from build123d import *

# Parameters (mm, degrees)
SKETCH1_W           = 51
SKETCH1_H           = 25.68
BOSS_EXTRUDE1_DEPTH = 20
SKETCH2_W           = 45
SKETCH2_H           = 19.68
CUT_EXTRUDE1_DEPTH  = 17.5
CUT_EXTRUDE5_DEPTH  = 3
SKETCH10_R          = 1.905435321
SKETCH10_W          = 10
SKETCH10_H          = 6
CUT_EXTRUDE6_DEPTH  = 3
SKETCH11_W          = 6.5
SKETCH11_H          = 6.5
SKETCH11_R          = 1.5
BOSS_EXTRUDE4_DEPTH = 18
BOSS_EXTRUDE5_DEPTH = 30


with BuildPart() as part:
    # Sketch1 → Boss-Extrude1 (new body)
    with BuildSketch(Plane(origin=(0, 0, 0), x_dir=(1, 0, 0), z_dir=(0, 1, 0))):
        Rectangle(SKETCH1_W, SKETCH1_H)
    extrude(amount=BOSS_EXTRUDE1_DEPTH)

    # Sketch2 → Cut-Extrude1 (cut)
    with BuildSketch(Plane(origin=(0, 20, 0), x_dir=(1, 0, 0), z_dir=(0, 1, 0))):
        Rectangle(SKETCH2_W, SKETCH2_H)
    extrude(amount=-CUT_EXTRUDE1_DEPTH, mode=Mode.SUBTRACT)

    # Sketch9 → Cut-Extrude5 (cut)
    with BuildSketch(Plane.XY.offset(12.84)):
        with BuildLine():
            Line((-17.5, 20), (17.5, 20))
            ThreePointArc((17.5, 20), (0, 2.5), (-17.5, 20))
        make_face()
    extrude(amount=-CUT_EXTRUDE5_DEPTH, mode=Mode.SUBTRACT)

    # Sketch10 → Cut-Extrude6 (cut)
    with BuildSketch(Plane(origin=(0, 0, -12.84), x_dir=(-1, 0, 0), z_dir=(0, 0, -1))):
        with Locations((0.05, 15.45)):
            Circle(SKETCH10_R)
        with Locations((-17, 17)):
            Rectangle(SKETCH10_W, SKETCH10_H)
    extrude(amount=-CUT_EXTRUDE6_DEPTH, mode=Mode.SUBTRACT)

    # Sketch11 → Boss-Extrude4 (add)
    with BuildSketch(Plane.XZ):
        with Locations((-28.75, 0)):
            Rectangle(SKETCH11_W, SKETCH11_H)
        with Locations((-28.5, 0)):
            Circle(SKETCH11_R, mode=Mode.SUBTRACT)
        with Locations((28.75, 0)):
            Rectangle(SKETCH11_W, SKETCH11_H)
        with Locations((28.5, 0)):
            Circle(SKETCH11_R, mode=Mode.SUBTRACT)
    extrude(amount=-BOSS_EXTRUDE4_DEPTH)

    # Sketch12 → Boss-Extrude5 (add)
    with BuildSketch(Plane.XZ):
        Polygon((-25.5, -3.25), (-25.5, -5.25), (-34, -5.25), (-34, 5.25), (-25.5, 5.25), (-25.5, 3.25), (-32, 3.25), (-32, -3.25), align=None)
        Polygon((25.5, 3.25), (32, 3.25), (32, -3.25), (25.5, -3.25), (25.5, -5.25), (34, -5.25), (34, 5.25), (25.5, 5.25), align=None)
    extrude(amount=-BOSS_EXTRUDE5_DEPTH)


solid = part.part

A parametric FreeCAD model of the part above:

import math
import FreeCAD as App
import Part
import Sketcher
from FreeCAD import Vector
Q = App.Units.Quantity


def add_polygon(sketch, points):
    """Adds a closed chain of lines whose ends are joined by coincident constraints."""
    first, n = sketch.GeometryCount, len(points)
    for a, b in zip(points, points[1:] + points[:1]):
        sketch.addGeometry(Part.LineSegment(App.Vector(*a, 0), App.Vector(*b, 0)), False)
    for i in range(n):
        sketch.addConstraint(Sketcher.Constraint("Coincident", first + i, 2, first + (i + 1) % n, 1))

doc = App.newDocument("Part")
body = doc.addObject("PartDesign::Body", "Body")

# Sketch on XZ plane
sketch1 = doc.addObject("Sketcher::SketchObject", "Sketch")
body.addObject(sketch1)
sketch1.AttachmentSupport = (doc.XZ_Plane, [""])
sketch1.MapMode = "FlatFace"
add_polygon(sketch1, [(-26, -13), (-26, 13), (26, 13), (26, -13)])  # lines 0-3
sketch1.addConstraint([
    Sketcher.Constraint("Vertical", 0),
    Sketcher.Constraint("Horizontal", 1),
    Sketcher.Constraint("Vertical", 2),
    Sketcher.Constraint("Horizontal", 3),
    Sketcher.Constraint("Symmetric", 0, 2, 2, 2, -1, 1),
    Sketcher.Constraint("DistanceX", 1, 1, 1, 2, Q("51 mm")),
    Sketcher.Constraint("DistanceY", 0, 1, 0, 2, Q("25.68 mm")),
])
pad1 = doc.addObject("PartDesign::Pad", "Pad")
body.addObject(pad1)
pad1.Profile = sketch1
pad1.Length = 20
pad1.Reversed = True

# Sketch on XZ plane
sketch2 = doc.addObject("Sketcher::SketchObject", "Sketch001")
body.addObject(sketch2)
sketch2.AttachmentSupport = (doc.XZ_Plane, [""])
sketch2.MapMode = "FlatFace"
sketch2.AttachmentOffset = App.Placement(Vector(0, 0, -20), App.Rotation())
add_polygon(sketch2, [(-22, -10), (-22, 10), (22, 10), (22, -10)])  # lines 0-3
sketch2.addConstraint([
    Sketcher.Constraint("Vertical", 0),
    Sketcher.Constraint("Horizontal", 1),
    Sketcher.Constraint("Vertical", 2),
    Sketcher.Constraint("Horizontal", 3),
    Sketcher.Constraint("Symmetric", 0, 2, 2, 2, -1, 1),
    Sketcher.Constraint("DistanceX", 1, 1, 1, 2, Q("45 mm")),
    Sketcher.Constraint("DistanceY", 0, 1, 0, 2, Q("19.68 mm")),
])
pocket1 = doc.addObject("PartDesign::Pocket", "Pocket")
body.addObject(pocket1)
pocket1.Profile = sketch2
pocket1.Length = 17.5
pocket1.Reversed = True

# Sketch on XY plane
sketch3 = doc.addObject("Sketcher::SketchObject", "Sketch002")
body.addObject(sketch3)
sketch3.AttachmentSupport = (doc.XY_Plane, [""])
sketch3.MapMode = "FlatFace"
sketch3.AttachmentOffset = App.Placement(Vector(0, 0, 12.84), App.Rotation())
sketch3.addGeometry([
    Part.LineSegment(Vector(18, 20, 0), Vector(-18, 20, 0)),
    Part.ArcOfCircle(Part.Circle(Vector(0, 20, 0), Vector(0, 0, 1), 18), math.radians(180), math.radians(360)),
], False)
sketch3.addConstraint([
    Sketcher.Constraint("Coincident", 0, 1, 1, 2),
    Sketcher.Constraint("Coincident", 1, 1, 0, 2),
    Sketcher.Constraint("Horizontal", 0),
    Sketcher.Constraint("PointOnObject", 1, 3, -2),
    Sketcher.Constraint("Horizontal", 1, 3, 0, 1),
    Sketcher.Constraint("Radius", 1, Q("17.5 mm")),
    Sketcher.Constraint("DistanceY", -1, 1, 1, 3, Q("20 mm")),
])
pocket2 = doc.addObject("PartDesign::Pocket", "Pocket001")
body.addObject(pocket2)
pocket2.Profile = sketch3
pocket2.Length = 3

# Sketch on XY plane
sketch4 = doc.addObject("Sketcher::SketchObject", "Sketch003")
body.addObject(sketch4)
sketch4.AttachmentSupport = (doc.XY_Plane, [""])
sketch4.MapMode = "FlatFace"
sketch4.AttachmentOffset = App.Placement(Vector(0, 0, -12.84), App.Rotation())
sketch4.addGeometry(Part.Circle(Vector(-0.1, 15.4, 0), Vector(0, 0, 1), 1.9), False)  # 0
add_polygon(sketch4, [(22, 20), (22, 14), (12, 14), (12, 20)])  # lines 1-4
sketch4.addConstraint([
    Sketcher.Constraint("Vertical", 1),
    Sketcher.Constraint("Horizontal", 2),
    Sketcher.Constraint("Vertical", 3),
    Sketcher.Constraint("Horizontal", 4),
    Sketcher.Constraint("DistanceX", 2, 2, 2, 1, Q("10 mm")),
    Sketcher.Constraint("DistanceY", 1, 2, 1, 1, Q("6 mm")),
    Sketcher.Constraint("DistanceX", -1, 1, 1, 2, Q("22 mm")),
    Sketcher.Constraint("DistanceY", -1, 1, 1, 2, Q("14 mm")),
    Sketcher.Constraint("Diameter", 0, Q("3.810871 mm")),
    Sketcher.Constraint("DistanceX", 0, 3, -1, 1, Q("0.05 mm")),
    Sketcher.Constraint("DistanceY", -1, 1, 0, 3, Q("15.45 mm")),
])
pocket3 = doc.addObject("PartDesign::Pocket", "Pocket002")
body.addObject(pocket3)
pocket3.Profile = sketch4
pocket3.Length = 3
pocket3.Reversed = True

# Sketch on XZ plane
sketch5 = doc.addObject("Sketcher::SketchObject", "Sketch004")
body.addObject(sketch5)
sketch5.AttachmentSupport = (doc.XZ_Plane, [""])
sketch5.MapMode = "FlatFace"
add_polygon(sketch5, [(-32, 3.2), (-32, -3.2), (-25.5, -3.2), (-25.5, 3.2)])  # lines 0-3
sketch5.addGeometry(Part.Circle(Vector(-28.5, 0, 0), Vector(0, 0, 1), 1.5), False)  # 4
add_polygon(sketch5, [(25.5, 3.2), (25.5, -3.2), (32, -3.2), (32, 3.2)])  # lines 5-8
sketch5.addGeometry(Part.Circle(Vector(28.5, 0, 0), Vector(0, 0, 1), 1.5), False)  # 9
sketch5.addConstraint([
    Sketcher.Constraint("Vertical", 0),
    Sketcher.Constraint("Horizontal", 1),
    Sketcher.Constraint("Vertical", 2),
    Sketcher.Constraint("Horizontal", 3),
    Sketcher.Constraint("Vertical", 5),
    Sketcher.Constraint("Horizontal", 6),
    Sketcher.Constraint("Vertical", 7),
    Sketcher.Constraint("Horizontal", 8),
    Sketcher.Constraint("Equal", 4, 9),
    Sketcher.Constraint("Symmetric", 4, 3, 9, 3, -1, 1),
    Sketcher.Constraint("Symmetric", 2, 2, 5, 2, -1, 1),
    Sketcher.Constraint("Symmetric", 0, 2, 7, 2, -1, 1),
    Sketcher.Constraint("PointOnObject", 4, 3, -1),
    Sketcher.Constraint("Horizontal", 1, 2, 5, 2),
    Sketcher.Constraint("Equal", 8, 0),
    Sketcher.Constraint("Diameter", 4, Q("3 mm")),
    Sketcher.Constraint("DistanceX", 1, 1, 1, 2, Q("6.5 mm")),
    Sketcher.Constraint("DistanceX", 0, 2, -1, 1, Q("32 mm")),
    Sketcher.Constraint("DistanceX", 4, 3, 9, 3, Q("57 mm")),
])
pad2 = doc.addObject("PartDesign::Pad", "Pad001")
body.addObject(pad2)
pad2.Profile = sketch5
pad2.Length = 18
pad2.Reversed = True

# Sketch on XZ plane
sketch6 = doc.addObject("Sketcher::SketchObject", "Sketch005")
body.addObject(sketch6)
sketch6.AttachmentSupport = (doc.XZ_Plane, [""])
sketch6.MapMode = "FlatFace"
add_polygon(sketch6, [(-25.5, -5.2), (-25.5, -3.2), (-32, -3.2), (-32, 3.2), (-25.5, 3.2), (-25.5, 5.2), (-34, 5.2), (-34, -5.2)])  # lines 0-7
add_polygon(sketch6, [(25.5, 3.2), (32, 3.2), (32, -3.2), (25.5, -3.2), (25.5, -5.2), (34, -5.2), (34, 5.2), (25.5, 5.2)])  # lines 8-15
sketch6.addConstraint([
    Sketcher.Constraint("Vertical", 0),
    Sketcher.Constraint("Horizontal", 1),
    Sketcher.Constraint("Vertical", 2),
    Sketcher.Constraint("Horizontal", 3),
    Sketcher.Constraint("Vertical", 4),
    Sketcher.Constraint("Horizontal", 5),
    Sketcher.Constraint("Vertical", 6),
    Sketcher.Constraint("Horizontal", 7),
    Sketcher.Constraint("Horizontal", 8),
    Sketcher.Constraint("Vertical", 9),
    Sketcher.Constraint("Horizontal", 10),
    Sketcher.Constraint("Vertical", 11),
    Sketcher.Constraint("Horizontal", 12),
    Sketcher.Constraint("Vertical", 13),
    Sketcher.Constraint("Horizontal", 14),
    Sketcher.Constraint("Vertical", 15),
    Sketcher.Constraint("Symmetric", 1, 2, 8, 2, -1, 1),
    Sketcher.Constraint("Symmetric", 3, 2, 10, 2, -1, 1),
    Sketcher.Constraint("Symmetric", 5, 2, 12, 2, -1, 1),
    Sketcher.Constraint("Symmetric", 7, 2, 14, 2, -1, 1),
    Sketcher.Constraint("Symmetric", 0, 2, 10, 2, -2),
    Sketcher.Constraint("Horizontal", 7, 2, 11, 2),
    Sketcher.Constraint("Equal", 10, 2),
    Sketcher.Constraint("DistanceY", 0, 1, 0, 2, Q("2 mm")),
    Sketcher.Constraint("DistanceX", 1, 2, 1, 1, Q("6.5 mm")),
    Sketcher.Constraint("DistanceX", 5, 2, 5, 1, Q("8.5 mm")),
    Sketcher.Constraint("DistanceX", 1, 2, -1, 1, Q("32 mm")),
])
pad3 = doc.addObject("PartDesign::Pad", "Pad002")
body.addObject(pad3)
pad3.Profile = sketch6
pad3.Length = 30
pad3.Reversed = True

doc.recompute()
